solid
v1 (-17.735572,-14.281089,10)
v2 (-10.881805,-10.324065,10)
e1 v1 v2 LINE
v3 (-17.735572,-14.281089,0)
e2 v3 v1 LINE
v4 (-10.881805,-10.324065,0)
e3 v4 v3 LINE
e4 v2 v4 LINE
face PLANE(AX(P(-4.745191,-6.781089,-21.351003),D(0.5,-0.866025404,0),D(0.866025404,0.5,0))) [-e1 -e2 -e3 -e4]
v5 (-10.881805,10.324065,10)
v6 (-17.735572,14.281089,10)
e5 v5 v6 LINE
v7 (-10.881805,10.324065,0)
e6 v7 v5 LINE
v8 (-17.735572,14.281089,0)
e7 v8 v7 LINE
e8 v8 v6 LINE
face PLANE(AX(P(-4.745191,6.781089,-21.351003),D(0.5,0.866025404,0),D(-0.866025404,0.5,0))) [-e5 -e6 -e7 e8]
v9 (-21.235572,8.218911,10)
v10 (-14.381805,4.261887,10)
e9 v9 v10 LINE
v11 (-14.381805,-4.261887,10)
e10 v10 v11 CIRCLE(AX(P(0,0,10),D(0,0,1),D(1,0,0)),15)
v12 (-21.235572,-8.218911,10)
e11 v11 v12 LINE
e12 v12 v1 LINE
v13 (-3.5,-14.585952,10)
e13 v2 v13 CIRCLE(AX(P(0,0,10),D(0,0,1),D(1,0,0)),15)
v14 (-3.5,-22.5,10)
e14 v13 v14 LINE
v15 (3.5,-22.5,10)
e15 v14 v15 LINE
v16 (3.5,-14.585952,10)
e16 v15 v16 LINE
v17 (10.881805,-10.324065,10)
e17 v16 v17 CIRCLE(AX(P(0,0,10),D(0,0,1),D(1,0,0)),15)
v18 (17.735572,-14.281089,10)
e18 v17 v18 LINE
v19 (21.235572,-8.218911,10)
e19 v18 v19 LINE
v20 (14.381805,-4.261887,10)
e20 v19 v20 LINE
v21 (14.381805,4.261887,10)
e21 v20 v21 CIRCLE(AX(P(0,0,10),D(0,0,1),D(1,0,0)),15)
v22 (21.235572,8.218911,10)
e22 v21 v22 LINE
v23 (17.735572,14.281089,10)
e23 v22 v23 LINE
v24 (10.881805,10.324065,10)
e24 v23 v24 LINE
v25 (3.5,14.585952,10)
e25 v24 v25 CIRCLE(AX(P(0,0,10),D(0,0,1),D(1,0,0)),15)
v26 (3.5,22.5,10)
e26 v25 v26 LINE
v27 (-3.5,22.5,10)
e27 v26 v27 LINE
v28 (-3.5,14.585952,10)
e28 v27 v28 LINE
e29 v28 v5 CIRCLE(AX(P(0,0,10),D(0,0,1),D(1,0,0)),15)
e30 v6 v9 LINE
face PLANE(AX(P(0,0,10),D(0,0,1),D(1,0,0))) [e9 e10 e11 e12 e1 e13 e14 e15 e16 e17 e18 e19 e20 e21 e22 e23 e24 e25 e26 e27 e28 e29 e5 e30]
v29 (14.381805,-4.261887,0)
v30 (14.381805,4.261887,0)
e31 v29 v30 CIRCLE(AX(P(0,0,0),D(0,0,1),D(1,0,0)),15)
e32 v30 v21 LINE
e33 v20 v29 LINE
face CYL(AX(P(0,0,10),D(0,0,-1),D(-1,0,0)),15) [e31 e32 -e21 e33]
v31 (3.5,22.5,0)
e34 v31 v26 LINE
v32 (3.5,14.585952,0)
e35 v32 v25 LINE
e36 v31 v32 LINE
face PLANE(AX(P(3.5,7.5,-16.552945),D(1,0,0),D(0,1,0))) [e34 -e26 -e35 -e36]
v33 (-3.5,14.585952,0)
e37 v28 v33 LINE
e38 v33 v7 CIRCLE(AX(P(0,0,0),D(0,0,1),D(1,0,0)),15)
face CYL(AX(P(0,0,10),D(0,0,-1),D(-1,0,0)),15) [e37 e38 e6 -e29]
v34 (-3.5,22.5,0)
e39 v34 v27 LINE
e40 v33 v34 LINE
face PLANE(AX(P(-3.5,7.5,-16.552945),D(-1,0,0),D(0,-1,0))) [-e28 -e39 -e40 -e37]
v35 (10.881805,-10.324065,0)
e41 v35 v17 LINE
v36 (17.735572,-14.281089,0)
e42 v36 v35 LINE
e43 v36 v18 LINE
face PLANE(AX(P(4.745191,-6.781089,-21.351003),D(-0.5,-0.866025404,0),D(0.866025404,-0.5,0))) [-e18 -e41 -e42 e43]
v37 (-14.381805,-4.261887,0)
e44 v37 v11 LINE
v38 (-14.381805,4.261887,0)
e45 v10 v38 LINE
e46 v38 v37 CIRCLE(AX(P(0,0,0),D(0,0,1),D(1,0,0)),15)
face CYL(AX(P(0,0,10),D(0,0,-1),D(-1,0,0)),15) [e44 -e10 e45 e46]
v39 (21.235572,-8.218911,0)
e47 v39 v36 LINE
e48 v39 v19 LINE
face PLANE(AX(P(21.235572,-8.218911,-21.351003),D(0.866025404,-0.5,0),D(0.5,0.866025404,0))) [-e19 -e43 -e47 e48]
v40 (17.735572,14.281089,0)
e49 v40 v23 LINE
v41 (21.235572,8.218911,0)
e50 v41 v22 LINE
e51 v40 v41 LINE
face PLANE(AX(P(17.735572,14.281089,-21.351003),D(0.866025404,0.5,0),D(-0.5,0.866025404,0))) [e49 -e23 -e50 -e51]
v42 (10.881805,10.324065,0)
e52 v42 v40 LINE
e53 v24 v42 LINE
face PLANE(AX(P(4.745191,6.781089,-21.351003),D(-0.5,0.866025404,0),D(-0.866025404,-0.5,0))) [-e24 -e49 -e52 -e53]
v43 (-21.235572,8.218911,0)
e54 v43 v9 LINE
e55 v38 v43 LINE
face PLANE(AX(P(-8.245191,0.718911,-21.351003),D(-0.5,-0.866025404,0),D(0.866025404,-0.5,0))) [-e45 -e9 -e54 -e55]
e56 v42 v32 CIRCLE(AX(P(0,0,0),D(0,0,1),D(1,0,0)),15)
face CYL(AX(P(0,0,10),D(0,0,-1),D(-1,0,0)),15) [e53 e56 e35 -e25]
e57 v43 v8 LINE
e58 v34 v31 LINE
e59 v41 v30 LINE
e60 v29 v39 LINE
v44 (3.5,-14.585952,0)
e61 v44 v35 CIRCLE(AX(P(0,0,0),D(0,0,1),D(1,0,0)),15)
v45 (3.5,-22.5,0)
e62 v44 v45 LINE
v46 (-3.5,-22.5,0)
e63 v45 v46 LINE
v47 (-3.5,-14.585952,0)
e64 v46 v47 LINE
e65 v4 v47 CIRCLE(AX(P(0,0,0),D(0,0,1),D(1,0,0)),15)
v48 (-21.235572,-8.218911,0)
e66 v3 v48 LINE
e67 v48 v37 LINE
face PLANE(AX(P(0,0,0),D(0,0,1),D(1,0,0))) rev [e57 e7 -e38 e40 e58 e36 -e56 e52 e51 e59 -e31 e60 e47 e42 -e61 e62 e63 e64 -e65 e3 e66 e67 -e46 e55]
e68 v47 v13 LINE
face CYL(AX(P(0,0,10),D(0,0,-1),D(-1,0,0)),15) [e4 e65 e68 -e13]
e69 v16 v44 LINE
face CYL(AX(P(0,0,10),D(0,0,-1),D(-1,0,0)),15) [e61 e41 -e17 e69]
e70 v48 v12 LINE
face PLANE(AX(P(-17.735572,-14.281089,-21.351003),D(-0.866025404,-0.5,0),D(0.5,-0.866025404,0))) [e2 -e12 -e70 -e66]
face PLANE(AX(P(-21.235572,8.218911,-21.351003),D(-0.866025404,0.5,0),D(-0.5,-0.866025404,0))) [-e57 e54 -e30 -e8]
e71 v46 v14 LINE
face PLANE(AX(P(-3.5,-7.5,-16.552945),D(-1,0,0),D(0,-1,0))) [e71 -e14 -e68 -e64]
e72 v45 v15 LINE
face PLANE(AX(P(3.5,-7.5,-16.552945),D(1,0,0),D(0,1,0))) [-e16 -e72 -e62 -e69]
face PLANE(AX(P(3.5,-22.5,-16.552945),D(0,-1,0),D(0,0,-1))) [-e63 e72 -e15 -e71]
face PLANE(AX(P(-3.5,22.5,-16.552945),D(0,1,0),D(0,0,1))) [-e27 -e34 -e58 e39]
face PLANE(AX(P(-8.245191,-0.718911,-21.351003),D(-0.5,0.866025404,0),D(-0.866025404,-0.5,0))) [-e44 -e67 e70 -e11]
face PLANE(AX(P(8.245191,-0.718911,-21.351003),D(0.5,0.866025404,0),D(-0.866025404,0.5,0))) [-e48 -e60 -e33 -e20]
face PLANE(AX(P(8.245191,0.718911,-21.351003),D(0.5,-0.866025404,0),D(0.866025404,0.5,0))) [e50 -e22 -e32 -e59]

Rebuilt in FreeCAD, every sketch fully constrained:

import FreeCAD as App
import Part
import Sketcher

V = App.Vector

doc = App.newDocument("Part")
body = doc.addObject("PartDesign::Body", "Body")

sketch1 = body.newObject("Sketcher::SketchObject", "Sketch")
sketch1.AttachmentSupport = (doc.getObject("XY_Plane"), [""])
sketch1.MapMode = "FlatFace"
sketch1.addGeometry(Part.Circle(V(0, 0, 0), V(0, 0, 1), 15), False)
sketch1.addConstraint([
    Sketcher.Constraint("Coincident", 0, 3, -1, 1),
    Sketcher.Constraint("Diameter", 0, 30.0),
])
pad1 = body.newObject("PartDesign::Pad", "Pad")
pad1.Profile = sketch1
pad1.Length = 10

sketch2 = body.newObject("Sketcher::SketchObject", "Sketch001")
sketch2.AttachmentSupport = (doc.getObject("XY_Plane"), [""])
sketch2.MapMode = "FlatFace"
sketch2.AttachmentOffset = App.Placement(V(0, 0, 10), App.Rotation())
sketch2.addGeometry([
    Part.LineSegment(V(-4, 22, 0), V(-4, 8, 0)),
    Part.LineSegment(V(-4, 8, 0), V(4, 8, 0)),
    Part.LineSegment(V(4, 8, 0), V(4, 22, 0)),
    Part.LineSegment(V(4, 22, 0), V(-4, 22, 0)),
], False)
sketch2.addConstraint([
    Sketcher.Constraint("Coincident", 0, 2, 1, 1),
    Sketcher.Constraint("Coincident", 1, 2, 2, 1),
    Sketcher.Constraint("Coincident", 2, 2, 3, 1),
    Sketcher.Constraint("Coincident", 3, 2, 0, 1),
    Sketcher.Constraint("Vertical", 0),
    Sketcher.Constraint("Horizontal", 1),
    Sketcher.Constraint("Vertical", 2),
    Sketcher.Constraint("Horizontal", 3),
    Sketcher.Constraint("DistanceX", 1, 1, 1, 2, 7.0),
    Sketcher.Constraint("DistanceY", 0, 2, 0, 1, 15.0),
    Sketcher.Constraint("DistanceX", 0, 2, -1, 1, 3.5),
    Sketcher.Constraint("DistanceY", -1, 1, 0, 2, 7.5),
])
pad2 = body.newObject("PartDesign::Pad", "Pad001")
pad2.Profile = sketch2
pad2.Length = 10
pad2.Reversed = True
doc.recompute()

polarpattern = body.newObject("PartDesign::PolarPattern", "PolarPattern")
polarpattern.Originals = [pad2]
polarpattern.Axis = (doc.getObject("Z_Axis"), [""])
polarpattern.Angle = 360
polarpattern.Occurrences = 6
body.Tip = polarpattern

doc.recompute()
